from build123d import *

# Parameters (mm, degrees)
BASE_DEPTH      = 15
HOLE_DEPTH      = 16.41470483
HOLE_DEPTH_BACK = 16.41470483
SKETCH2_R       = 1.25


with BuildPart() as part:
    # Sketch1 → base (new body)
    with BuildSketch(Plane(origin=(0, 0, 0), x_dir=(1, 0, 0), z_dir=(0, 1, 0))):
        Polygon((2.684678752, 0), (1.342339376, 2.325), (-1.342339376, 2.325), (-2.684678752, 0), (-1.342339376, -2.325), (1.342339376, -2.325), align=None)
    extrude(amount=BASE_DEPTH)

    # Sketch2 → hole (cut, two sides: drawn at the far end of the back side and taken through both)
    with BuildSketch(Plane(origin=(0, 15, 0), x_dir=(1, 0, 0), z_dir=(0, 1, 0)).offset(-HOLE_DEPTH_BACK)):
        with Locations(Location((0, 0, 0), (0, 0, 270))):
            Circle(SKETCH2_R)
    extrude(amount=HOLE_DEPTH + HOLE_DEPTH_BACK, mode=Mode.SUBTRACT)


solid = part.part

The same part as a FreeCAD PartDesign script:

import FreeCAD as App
import Part
import Sketcher
from FreeCAD import Vector
Q = App.Units.Quantity


def add_polygon(sketch, points):
    """Adds a closed chain of lines whose ends are joined by coincident constraints."""
    first, n = sketch.GeometryCount, len(points)
    for a, b in zip(points, points[1:] + points[:1]):
        sketch.addGeometry(Part.LineSegment(App.Vector(*a, 0), App.Vector(*b, 0)), False)
    for i in range(n):
        sketch.addConstraint(Sketcher.Constraint("Coincident", first + i, 2, first + (i + 1) % n, 1))

doc = App.newDocument("Part")
body = doc.addObject("PartDesign::Body", "Body")

# Sketch on XZ plane
sketch1 = body.newObject("Sketcher::SketchObject", "Sketch")
sketch1.AttachmentSupport = (doc.getObject("XZ_Plane"), [""])
sketch1.MapMode = "FlatFace"
add_polygon(sketch1, [(2.7, 0), (1.3, -2.3), (-1.3, -2.3), (-2.7, 0), (-1.3, 2.3), (1.3, 2.3)])  # lines 0-5
sketch1.addConstraint([
    Sketcher.Constraint("Horizontal", 1),
    Sketcher.Constraint("Horizontal", 4),
    Sketcher.Constraint("Symmetric", 0, 2, 3, 2, -1, 1),
    Sketcher.Constraint("Symmetric", 2, 2, 5, 2, -1, 1),
    Sketcher.Constraint("PointOnObject", 2, 2, -1),
    Sketcher.Constraint("Parallel", 2, 5),
    Sketcher.Constraint("Vertical", 1, 2, 3, 2),
    Sketcher.Constraint("Angle", 0, Q("-120 deg")),
    Sketcher.Constraint("DistanceY", 1, 2, 3, 2, 4.65),
    Sketcher.Constraint("DistanceX", 1, 2, 1, 1, 2.684679),
])
pad1 = body.newObject("PartDesign::Pad", "Pad")
pad1.Profile = sketch1
pad1.Length = 15
pad1.Reversed = True

# Sketch on XZ plane
sketch2 = body.newObject("Sketcher::SketchObject", "Sketch001")
sketch2.AttachmentSupport = (doc.getObject("XZ_Plane"), [""])
sketch2.MapMode = "FlatFace"
sketch2.AttachmentOffset = App.Placement(Vector(0, 0, -15), App.Rotation())
sketch2.addGeometry(Part.Circle(Vector(0, 0, 0), Vector(0, 0, 1), 1.2), False)
sketch2.addConstraint([
    Sketcher.Constraint("Coincident", 0, 3, -1, 1),
    Sketcher.Constraint("Diameter", 0, 2.5),
])
pocket1 = body.newObject("PartDesign::Pocket", "Pocket")
pocket1.Profile = sketch2
pocket1.Type = "ThroughAll"
pocket1.Midplane = True

doc.recompute()
